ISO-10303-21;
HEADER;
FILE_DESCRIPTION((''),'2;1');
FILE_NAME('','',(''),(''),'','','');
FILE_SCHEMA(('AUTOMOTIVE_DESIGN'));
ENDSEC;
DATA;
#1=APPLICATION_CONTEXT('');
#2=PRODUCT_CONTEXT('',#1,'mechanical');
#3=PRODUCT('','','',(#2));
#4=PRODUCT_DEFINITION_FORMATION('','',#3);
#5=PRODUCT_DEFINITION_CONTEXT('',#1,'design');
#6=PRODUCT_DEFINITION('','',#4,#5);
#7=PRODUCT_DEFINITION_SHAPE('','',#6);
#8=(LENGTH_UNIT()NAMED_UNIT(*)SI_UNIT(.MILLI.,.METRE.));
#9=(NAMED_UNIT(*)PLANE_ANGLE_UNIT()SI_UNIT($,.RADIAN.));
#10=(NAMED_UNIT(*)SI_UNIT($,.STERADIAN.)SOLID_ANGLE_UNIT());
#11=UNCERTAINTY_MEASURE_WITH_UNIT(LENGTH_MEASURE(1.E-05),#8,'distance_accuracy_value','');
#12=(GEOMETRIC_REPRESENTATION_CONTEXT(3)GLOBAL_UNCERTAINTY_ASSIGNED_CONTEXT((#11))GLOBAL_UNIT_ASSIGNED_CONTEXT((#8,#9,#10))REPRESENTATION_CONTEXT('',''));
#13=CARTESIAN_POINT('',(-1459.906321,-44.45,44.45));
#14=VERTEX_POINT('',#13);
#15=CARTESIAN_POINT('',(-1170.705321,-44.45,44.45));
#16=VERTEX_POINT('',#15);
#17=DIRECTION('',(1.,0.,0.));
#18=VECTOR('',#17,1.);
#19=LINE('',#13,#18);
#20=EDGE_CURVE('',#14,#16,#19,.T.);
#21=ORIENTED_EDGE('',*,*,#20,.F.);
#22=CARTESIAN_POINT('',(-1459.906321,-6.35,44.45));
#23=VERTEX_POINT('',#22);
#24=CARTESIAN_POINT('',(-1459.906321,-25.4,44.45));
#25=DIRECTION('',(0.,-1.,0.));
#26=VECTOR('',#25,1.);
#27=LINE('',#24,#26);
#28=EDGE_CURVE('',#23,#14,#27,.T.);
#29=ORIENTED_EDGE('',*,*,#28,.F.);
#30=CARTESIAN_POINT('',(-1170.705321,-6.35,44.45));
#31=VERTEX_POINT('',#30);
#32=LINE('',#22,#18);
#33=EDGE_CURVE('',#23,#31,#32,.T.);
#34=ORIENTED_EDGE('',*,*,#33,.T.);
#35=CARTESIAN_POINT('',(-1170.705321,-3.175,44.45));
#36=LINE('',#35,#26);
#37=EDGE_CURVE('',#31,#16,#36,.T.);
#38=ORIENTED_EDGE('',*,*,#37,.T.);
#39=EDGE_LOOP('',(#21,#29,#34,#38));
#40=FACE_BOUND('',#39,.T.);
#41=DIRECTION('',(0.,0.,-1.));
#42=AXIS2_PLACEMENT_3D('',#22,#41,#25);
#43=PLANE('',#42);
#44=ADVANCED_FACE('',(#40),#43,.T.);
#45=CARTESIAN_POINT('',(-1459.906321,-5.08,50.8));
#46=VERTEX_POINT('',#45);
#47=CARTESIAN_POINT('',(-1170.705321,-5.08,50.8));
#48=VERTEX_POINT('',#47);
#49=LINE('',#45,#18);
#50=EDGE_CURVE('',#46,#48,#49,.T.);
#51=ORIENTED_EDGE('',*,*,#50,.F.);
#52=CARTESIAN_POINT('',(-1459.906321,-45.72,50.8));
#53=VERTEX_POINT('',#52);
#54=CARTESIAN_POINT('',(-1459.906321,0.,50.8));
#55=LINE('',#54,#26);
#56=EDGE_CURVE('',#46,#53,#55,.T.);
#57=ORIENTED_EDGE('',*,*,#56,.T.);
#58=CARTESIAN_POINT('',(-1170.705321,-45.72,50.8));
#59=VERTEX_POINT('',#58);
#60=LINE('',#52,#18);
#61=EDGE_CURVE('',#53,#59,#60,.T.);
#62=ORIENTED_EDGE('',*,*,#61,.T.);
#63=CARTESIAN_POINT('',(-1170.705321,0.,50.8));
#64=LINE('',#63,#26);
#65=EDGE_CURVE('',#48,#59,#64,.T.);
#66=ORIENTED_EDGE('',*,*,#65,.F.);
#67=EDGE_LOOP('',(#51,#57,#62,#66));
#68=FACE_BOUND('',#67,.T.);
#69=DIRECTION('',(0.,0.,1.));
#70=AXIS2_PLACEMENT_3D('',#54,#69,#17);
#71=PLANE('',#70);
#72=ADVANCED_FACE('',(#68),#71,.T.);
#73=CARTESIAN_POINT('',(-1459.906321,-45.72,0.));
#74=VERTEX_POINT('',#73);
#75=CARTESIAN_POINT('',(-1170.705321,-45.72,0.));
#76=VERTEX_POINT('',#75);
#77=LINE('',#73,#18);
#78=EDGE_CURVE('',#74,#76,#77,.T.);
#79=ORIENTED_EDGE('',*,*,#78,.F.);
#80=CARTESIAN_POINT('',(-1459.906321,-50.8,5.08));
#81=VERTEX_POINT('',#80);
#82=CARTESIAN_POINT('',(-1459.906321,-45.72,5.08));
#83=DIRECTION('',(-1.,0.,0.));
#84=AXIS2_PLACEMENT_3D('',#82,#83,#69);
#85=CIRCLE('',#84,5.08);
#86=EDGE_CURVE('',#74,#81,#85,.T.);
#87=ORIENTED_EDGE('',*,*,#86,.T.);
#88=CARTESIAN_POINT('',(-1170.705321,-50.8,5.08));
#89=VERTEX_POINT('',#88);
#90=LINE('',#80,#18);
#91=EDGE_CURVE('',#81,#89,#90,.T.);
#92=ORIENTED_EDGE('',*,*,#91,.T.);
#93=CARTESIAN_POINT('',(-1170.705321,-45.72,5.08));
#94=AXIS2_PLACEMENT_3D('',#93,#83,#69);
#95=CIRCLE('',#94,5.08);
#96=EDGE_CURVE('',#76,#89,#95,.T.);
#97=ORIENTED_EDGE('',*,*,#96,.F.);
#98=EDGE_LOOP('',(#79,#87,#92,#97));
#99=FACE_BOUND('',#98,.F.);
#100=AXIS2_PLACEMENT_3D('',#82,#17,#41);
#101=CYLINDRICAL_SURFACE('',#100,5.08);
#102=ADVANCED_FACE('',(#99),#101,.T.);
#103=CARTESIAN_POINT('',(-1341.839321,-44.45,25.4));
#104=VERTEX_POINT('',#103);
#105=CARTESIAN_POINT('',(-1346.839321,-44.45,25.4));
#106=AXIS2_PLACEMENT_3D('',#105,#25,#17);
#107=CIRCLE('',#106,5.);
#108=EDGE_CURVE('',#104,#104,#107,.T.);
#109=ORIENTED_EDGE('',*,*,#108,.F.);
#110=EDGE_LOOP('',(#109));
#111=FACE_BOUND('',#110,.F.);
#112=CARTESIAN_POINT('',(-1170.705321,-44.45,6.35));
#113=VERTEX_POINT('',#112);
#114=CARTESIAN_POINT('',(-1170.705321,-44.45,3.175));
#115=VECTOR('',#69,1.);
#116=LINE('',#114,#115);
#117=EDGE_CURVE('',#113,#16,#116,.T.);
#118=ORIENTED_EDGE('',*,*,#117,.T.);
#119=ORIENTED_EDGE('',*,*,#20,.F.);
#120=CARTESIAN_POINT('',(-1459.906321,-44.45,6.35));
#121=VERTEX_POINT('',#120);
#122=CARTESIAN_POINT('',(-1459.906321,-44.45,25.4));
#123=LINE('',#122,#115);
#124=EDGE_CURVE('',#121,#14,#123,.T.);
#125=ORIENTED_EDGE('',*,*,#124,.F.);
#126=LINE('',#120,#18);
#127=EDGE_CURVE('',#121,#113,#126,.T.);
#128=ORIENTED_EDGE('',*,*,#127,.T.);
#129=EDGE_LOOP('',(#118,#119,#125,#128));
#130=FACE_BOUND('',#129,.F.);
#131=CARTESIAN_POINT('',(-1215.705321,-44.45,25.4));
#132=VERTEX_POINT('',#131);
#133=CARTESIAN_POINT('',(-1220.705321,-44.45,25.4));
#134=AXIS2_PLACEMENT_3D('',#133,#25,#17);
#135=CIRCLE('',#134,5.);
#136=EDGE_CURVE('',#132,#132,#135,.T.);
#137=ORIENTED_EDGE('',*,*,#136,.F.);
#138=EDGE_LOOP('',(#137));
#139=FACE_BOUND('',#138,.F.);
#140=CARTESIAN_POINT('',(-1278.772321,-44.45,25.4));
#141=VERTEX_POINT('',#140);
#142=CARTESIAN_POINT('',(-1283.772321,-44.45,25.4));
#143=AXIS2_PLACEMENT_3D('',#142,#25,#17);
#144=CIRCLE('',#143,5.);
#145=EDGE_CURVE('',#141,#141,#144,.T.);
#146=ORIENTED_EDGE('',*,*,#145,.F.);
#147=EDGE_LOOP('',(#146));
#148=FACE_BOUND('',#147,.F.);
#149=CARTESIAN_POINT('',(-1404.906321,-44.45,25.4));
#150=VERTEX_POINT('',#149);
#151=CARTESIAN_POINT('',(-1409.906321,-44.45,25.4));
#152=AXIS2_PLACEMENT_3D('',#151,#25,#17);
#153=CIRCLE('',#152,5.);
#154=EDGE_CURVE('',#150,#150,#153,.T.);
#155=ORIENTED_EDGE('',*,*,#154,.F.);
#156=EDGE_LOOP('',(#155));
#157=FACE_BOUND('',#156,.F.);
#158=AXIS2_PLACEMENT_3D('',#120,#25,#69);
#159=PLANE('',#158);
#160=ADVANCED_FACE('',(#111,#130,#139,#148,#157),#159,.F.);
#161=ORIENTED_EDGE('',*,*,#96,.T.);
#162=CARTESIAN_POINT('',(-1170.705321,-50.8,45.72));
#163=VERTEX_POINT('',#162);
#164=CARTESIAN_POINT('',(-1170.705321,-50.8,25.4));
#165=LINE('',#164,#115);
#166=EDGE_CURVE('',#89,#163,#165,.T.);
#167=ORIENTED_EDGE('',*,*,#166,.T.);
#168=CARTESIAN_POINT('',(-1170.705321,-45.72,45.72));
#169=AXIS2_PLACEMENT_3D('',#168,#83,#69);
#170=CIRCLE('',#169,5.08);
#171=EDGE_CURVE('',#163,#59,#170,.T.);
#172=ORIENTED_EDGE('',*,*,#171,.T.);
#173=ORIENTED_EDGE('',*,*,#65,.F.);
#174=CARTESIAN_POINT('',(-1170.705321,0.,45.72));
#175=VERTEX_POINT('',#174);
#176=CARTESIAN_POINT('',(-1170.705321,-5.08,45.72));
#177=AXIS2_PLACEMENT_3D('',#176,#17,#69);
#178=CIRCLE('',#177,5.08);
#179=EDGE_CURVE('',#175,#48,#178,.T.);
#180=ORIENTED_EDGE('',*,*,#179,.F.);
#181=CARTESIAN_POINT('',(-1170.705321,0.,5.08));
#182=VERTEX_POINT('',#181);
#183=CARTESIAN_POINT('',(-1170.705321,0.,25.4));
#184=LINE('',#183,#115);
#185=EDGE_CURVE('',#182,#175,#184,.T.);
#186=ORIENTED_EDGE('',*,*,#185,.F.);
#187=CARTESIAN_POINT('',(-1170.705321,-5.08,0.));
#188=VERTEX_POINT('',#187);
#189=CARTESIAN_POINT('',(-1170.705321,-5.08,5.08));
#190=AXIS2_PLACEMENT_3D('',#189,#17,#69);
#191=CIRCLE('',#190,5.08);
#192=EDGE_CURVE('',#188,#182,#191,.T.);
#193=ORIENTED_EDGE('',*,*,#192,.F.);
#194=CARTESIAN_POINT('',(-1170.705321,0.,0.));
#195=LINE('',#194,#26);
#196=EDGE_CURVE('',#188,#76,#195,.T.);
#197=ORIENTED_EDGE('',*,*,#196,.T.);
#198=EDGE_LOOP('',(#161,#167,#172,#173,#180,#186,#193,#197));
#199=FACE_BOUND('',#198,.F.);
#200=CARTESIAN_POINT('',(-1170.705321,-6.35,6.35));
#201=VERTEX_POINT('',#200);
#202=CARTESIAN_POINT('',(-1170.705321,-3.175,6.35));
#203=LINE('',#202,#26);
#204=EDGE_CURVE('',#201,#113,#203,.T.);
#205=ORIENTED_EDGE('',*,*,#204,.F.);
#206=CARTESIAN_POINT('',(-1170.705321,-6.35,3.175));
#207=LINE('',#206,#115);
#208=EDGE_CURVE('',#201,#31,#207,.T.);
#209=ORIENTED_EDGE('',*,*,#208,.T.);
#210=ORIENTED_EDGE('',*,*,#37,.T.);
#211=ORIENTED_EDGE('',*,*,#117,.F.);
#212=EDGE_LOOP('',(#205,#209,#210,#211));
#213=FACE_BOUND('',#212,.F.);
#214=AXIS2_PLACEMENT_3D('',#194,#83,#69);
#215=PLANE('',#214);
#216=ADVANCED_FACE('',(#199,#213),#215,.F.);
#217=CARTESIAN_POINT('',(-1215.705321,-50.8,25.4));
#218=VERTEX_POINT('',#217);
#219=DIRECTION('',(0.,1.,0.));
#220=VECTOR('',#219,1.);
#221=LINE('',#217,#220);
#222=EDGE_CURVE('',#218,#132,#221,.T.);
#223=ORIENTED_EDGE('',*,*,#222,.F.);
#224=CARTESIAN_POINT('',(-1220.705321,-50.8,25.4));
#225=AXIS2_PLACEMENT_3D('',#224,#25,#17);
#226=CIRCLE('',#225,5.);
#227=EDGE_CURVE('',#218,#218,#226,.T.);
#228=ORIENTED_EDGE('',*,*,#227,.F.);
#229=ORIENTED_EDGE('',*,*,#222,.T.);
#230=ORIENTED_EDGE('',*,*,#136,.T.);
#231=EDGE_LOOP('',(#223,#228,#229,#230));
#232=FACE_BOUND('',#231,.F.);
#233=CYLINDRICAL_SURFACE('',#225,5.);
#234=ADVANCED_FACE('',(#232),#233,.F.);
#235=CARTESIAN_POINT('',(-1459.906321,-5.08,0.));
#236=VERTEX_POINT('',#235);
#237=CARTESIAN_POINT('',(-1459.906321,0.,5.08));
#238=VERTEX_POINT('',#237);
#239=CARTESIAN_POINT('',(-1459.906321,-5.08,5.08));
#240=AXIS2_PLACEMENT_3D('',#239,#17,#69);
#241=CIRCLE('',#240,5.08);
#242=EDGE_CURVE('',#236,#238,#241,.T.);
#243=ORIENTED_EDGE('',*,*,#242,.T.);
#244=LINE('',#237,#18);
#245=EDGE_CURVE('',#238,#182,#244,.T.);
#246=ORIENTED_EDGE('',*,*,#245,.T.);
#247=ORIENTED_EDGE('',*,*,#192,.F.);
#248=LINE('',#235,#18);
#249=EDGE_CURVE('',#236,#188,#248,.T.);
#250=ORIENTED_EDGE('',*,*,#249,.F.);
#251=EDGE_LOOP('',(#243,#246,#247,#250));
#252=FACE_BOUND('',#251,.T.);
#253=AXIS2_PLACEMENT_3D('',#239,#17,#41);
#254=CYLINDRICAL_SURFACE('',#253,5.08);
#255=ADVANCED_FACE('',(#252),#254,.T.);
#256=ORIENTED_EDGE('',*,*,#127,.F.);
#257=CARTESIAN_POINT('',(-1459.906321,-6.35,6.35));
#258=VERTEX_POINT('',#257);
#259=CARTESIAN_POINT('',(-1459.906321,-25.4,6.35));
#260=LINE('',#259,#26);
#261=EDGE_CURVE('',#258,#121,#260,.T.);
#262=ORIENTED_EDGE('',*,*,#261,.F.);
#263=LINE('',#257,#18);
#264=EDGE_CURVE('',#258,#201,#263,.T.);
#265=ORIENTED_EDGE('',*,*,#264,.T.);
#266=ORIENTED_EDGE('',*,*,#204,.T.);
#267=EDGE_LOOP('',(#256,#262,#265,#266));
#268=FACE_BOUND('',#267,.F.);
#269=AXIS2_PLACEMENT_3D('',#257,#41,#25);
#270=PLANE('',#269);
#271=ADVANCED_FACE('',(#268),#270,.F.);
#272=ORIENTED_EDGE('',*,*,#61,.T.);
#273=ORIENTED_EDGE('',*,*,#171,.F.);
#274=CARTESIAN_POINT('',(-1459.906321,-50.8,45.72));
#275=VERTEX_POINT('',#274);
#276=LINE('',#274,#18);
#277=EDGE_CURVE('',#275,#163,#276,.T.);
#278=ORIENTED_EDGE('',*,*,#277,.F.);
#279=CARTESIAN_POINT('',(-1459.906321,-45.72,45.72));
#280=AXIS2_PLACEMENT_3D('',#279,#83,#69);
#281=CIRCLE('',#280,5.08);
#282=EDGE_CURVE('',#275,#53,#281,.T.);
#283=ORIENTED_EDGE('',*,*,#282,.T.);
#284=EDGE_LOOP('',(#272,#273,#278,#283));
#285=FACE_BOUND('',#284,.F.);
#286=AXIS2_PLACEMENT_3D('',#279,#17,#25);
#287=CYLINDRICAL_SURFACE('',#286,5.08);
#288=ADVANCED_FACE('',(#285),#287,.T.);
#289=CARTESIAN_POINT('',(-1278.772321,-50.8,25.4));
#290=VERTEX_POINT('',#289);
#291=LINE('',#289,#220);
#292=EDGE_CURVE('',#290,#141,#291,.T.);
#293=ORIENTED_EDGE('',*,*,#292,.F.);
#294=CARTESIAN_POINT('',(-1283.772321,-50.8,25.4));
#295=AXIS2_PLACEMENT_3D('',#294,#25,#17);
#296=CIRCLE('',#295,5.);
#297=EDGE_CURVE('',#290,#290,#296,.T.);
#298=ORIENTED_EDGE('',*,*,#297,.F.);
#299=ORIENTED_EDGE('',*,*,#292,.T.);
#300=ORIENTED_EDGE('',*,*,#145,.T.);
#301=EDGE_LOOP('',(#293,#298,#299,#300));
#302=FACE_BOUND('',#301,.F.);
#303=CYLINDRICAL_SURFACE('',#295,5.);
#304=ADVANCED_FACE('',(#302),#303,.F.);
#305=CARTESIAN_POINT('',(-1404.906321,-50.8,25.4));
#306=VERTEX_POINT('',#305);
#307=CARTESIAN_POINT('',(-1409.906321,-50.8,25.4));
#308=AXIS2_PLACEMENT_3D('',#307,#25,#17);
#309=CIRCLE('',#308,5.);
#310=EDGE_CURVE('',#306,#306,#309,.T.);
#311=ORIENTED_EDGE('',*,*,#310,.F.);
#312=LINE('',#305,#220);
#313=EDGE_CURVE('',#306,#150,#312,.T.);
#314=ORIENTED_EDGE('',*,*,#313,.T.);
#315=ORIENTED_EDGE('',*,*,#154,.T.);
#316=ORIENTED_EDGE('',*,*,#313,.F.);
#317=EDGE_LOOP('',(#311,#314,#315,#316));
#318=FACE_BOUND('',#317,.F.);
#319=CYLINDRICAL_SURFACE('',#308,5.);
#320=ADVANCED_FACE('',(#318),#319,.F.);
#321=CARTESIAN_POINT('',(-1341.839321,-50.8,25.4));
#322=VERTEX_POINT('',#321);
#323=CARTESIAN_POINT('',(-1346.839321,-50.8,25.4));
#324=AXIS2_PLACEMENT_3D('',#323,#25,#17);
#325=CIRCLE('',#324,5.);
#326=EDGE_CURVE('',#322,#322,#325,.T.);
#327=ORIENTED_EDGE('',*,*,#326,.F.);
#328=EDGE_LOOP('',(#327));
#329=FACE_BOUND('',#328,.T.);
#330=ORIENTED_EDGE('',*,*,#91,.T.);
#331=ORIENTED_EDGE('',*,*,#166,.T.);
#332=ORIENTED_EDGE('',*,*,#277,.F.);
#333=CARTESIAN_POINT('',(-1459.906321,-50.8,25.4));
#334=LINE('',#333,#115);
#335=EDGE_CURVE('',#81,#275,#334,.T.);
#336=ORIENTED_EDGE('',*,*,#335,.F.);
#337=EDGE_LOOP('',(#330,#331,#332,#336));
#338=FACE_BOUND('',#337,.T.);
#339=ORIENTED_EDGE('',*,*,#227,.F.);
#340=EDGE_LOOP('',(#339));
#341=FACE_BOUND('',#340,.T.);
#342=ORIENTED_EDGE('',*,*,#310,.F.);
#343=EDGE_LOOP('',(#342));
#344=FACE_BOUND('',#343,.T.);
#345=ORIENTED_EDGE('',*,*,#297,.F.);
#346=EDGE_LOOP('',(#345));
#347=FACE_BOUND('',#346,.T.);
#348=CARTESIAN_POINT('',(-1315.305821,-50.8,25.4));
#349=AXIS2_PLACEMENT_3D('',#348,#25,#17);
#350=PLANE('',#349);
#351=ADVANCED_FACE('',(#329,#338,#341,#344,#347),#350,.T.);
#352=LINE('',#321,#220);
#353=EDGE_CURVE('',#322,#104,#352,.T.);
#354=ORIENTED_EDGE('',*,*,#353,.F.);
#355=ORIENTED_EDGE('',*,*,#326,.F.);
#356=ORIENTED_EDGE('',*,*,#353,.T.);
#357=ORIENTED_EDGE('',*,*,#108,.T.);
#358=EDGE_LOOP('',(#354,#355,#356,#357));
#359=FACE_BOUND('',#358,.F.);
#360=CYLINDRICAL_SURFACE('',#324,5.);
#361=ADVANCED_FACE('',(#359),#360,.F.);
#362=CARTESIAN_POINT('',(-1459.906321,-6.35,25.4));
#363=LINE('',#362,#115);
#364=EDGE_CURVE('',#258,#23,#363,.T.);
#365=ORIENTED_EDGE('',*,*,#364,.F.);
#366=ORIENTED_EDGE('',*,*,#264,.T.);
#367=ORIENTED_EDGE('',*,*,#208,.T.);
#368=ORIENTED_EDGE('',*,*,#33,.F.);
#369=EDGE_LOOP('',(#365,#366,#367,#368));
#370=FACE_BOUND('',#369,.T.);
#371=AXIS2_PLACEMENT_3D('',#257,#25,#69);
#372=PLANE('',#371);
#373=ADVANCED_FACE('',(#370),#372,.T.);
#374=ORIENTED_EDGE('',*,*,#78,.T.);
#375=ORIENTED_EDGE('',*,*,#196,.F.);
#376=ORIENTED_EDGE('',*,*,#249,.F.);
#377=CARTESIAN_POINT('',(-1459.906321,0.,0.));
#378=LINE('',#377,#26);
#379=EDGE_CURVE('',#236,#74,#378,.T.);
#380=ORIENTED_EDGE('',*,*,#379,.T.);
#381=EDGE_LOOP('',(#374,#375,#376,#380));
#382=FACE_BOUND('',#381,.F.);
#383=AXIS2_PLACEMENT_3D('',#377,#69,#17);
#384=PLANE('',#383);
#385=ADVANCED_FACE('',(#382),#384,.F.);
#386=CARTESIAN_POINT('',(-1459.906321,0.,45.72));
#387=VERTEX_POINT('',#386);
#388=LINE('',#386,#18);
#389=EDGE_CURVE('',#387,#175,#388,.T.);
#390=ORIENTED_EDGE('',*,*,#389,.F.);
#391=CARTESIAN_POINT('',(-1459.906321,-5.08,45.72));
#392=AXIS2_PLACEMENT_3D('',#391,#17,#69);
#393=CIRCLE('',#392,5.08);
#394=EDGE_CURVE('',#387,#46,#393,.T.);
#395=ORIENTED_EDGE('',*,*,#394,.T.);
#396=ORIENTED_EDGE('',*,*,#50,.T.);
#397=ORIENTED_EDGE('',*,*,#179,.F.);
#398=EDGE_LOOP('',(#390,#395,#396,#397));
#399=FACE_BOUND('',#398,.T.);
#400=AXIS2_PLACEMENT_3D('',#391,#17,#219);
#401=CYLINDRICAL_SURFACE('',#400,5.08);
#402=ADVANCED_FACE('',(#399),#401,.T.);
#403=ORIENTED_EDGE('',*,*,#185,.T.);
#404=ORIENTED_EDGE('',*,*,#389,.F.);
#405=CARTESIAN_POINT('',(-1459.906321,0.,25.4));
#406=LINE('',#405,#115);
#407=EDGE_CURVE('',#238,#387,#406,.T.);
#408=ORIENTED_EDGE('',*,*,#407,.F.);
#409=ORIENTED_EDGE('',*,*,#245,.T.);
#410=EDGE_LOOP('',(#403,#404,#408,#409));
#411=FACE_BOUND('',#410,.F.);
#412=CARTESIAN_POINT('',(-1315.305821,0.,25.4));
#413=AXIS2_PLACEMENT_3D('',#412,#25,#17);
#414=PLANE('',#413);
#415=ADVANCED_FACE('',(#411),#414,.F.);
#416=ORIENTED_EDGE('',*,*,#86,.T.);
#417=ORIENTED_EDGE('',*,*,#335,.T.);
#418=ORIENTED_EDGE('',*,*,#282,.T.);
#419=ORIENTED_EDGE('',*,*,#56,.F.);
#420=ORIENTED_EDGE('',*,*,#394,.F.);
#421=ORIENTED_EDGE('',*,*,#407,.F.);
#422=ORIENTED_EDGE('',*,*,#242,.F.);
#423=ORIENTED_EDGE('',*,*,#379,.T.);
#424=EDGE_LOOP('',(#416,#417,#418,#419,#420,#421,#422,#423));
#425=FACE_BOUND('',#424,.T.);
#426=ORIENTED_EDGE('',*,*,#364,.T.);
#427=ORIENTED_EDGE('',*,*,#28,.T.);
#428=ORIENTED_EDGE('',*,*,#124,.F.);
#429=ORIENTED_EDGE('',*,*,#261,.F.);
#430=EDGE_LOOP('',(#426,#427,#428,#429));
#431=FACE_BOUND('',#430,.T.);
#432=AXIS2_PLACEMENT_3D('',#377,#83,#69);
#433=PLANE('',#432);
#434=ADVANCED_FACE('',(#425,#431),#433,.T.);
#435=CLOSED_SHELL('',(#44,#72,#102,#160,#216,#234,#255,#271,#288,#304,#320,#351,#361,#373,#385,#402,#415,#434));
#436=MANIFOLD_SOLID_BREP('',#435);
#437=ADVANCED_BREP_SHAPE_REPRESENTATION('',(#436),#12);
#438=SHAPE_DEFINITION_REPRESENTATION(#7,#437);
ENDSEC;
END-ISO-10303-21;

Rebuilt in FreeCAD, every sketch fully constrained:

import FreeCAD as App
import Part
import Sketcher
Q = App.Units.Quantity


def edges_at(feature, points):
    """Names of the edges that pass closest to the given points."""
    edges = feature.Shape.Edges
    near = lambda p: min(range(len(edges)), key=lambda i: edges[i].distToShape(Part.Vertex(*p))[0])
    return sorted({f"Edge{near(p) + 1}" for p in points})

doc = App.newDocument("Part")
params = doc.addObject("Spreadsheet::Sheet", "Params")
for row, (alias, value) in enumerate([
    ("sketch1_height", "2 in"),
    ("pad1_length", "2 in"),
    ("pocket1_length", "1 in"),
    ("sketch3_width", "1.5 in"),
    ("fillet_radius", "0.2 in"),
], start=1):
    params.set(f"A{row}", alias)
    params.set(f"B{row}", "=" + value)
    params.setAlias(f"B{row}", alias)

body = doc.addObject("PartDesign::Body", "Body")

# Sketch on XZ plane
sketch1 = doc.addObject("Sketcher::SketchObject", "Sketch")
body.addObject(sketch1)
sketch1.AttachmentSupport = (doc.XZ_Plane, [""])
sketch1.MapMode = "FlatFace"
sketch1.addGeometry(Part.LineSegment(App.Vector(-1460, 51, 0), App.Vector(-1460, 0, 0)), False)
sketch1.addGeometry(Part.LineSegment(App.Vector(-1460, 0, 0), App.Vector(-1171, 0, 0)), False)
sketch1.addGeometry(Part.LineSegment(App.Vector(-1171, 0, 0), App.Vector(-1171, 51, 0)), False)
sketch1.addGeometry(Part.LineSegment(App.Vector(-1171, 51, 0), App.Vector(-1460, 51, 0)), False)
sketch1.addConstraint(Sketcher.Constraint("Coincident", 0, 2, 1, 1))
sketch1.addConstraint(Sketcher.Constraint("Coincident", 1, 2, 2, 1))
sketch1.addConstraint(Sketcher.Constraint("Coincident", 2, 2, 3, 1))
sketch1.addConstraint(Sketcher.Constraint("Coincident", 3, 2, 0, 1))
sketch1.addConstraint(Sketcher.Constraint("Vertical", 0))
sketch1.addConstraint(Sketcher.Constraint("Horizontal", 1))
sketch1.addConstraint(Sketcher.Constraint("Vertical", 2))
sketch1.addConstraint(Sketcher.Constraint("Horizontal", 3))
sketch1.addConstraint(Sketcher.Constraint("PointOnObject", 0, 2, -1))
sketch1.addConstraint(Sketcher.Constraint("DistanceY", 0, 2, 0, 1, Q("2 in")))
sketch1.addConstraint(Sketcher.Constraint("DistanceX", 1, 1, 1, 2, 289.201))
sketch1.addConstraint(Sketcher.Constraint("DistanceX", 0, 2, -1, 1, 1459.906321))
sketch1.setExpression("Constraints[9]", "Params.sketch1_height")
pad1 = doc.addObject("PartDesign::Pad", "Pad")
body.addObject(pad1)
pad1.Profile = sketch1
pad1.setExpression("Length", "Params.pad1_length")

# Sketch on XZ plane
sketch2 = doc.addObject("Sketcher::SketchObject", "Sketch001")
body.addObject(sketch2)
sketch2.AttachmentSupport = (doc.XZ_Plane, [""])
sketch2.MapMode = "FlatFace"
sketch2.AttachmentOffset = App.Placement(App.Vector(0, 0, 2 * 25.4), App.Rotation())
sketch2.addGeometry(Part.Circle(App.Vector(-1347, 25, 0), App.Vector(0, 0, 1), 5), False)
sketch2.addGeometry(Part.Circle(App.Vector(-1221, 25, 0), App.Vector(0, 0, 1), 5), False)
sketch2.addGeometry(Part.Circle(App.Vector(-1284, 25, 0), App.Vector(0, 0, 1), 5), False)
sketch2.addGeometry(Part.Circle(App.Vector(-1410, 25, 0), App.Vector(0, 0, 1), 5), False)
sketch2.addConstraint(Sketcher.Constraint("Equal", 0, 1))
sketch2.addConstraint(Sketcher.Constraint("Equal", 1, 2))
sketch2.addConstraint(Sketcher.Constraint("Equal", 2, 3))
sketch2.addConstraint(Sketcher.Constraint("Horizontal", 0, 3, 1, 3))
sketch2.addConstraint(Sketcher.Constraint("Horizontal", 1, 3, 2, 3))
sketch2.addConstraint(Sketcher.Constraint("Horizontal", 2, 3, 3, 3))
sketch2.addConstraint(Sketcher.Constraint("DistanceY", -1, 1, 0, 3, Q("1 in")))
sketch2.addConstraint(Sketcher.Constraint("Diameter", 0, 10.0))
sketch2.addConstraint(Sketcher.Constraint("DistanceX", 0, 3, 1, 3, 126.134))
sketch2.addConstraint(Sketcher.Constraint("DistanceX", 0, 3, 2, 3, 63.067))
sketch2.addConstraint(Sketcher.Constraint("DistanceX", 3, 3, 0, 3, 63.067))
sketch2.addConstraint(Sketcher.Constraint("DistanceX", 0, 3, -1, 1, 1346.839321))
pocket1 = doc.addObject("PartDesign::Pocket", "Pocket")
body.addObject(pocket1)
pocket1.Profile = sketch2
pocket1.setExpression("Length", "Params.pocket1_length")

# Sketch on YZ plane
sketch3 = doc.addObject("Sketcher::SketchObject", "Sketch002")
body.addObject(sketch3)
sketch3.AttachmentSupport = (doc.YZ_Plane, [""])
sketch3.MapMode = "FlatFace"
sketch3.AttachmentOffset = App.Placement(App.Vector(0, 0, -1459.906321), App.Rotation())
sketch3.addGeometry(Part.LineSegment(App.Vector(-6, 44, 0), App.Vector(-6, 6, 0)), False)
sketch3.addGeometry(Part.LineSegment(App.Vector(-6, 6, 0), App.Vector(-44, 6, 0)), False)
sketch3.addGeometry(Part.LineSegment(App.Vector(-44, 6, 0), App.Vector(-44, 44, 0)), False)
sketch3.addGeometry(Part.LineSegment(App.Vector(-44, 44, 0), App.Vector(-6, 44, 0)), False)
sketch3.addConstraint(Sketcher.Constraint("Coincident", 0, 2, 1, 1))
sketch3.addConstraint(Sketcher.Constraint("Coincident", 1, 2, 2, 1))
sketch3.addConstraint(Sketcher.Constraint("Coincident", 2, 2, 3, 1))
sketch3.addConstraint(Sketcher.Constraint("Coincident", 3, 2, 0, 1))
sketch3.addConstraint(Sketcher.Constraint("Vertical", 0))
sketch3.addConstraint(Sketcher.Constraint("Horizontal", 1))
sketch3.addConstraint(Sketcher.Constraint("Vertical", 2))
sketch3.addConstraint(Sketcher.Constraint("Horizontal", 3))
sketch3.addConstraint(Sketcher.Constraint("Equal", 3, 0))
sketch3.addConstraint(Sketcher.Constraint("DistanceX", 1, 2, 1, 1, Q("1.5 in")))
sketch3.addConstraint(Sketcher.Constraint("DistanceX", 0, 2, -1, 1, Q("0.25 in")))
sketch3.addConstraint(Sketcher.Constraint("DistanceY", -1, 1, 0, 2, Q("0.25 in")))
sketch3.setExpression("Constraints[9]", "Params.sketch3_width")
pocket2 = doc.addObject("PartDesign::Pocket", "Pocket001")
body.addObject(pocket2)
pocket2.Profile = sketch3
pocket2.Type = "ThroughAll"
pocket2.Reversed = True
doc.recompute()

fillet = doc.addObject("PartDesign::Fillet", "Fillet")
body.addObject(fillet)
fillet.Base = (pocket2, edges_at(pocket2, [
    (-1315.306, -50.8, 50.8),
    (-1315.306, 0, 50.8),
    (-1315.306, -50.8, 0),
    (-1315.306, 0, 0),
]))
fillet.setExpression("Radius", "Params.fillet_radius")

doc.recompute()
